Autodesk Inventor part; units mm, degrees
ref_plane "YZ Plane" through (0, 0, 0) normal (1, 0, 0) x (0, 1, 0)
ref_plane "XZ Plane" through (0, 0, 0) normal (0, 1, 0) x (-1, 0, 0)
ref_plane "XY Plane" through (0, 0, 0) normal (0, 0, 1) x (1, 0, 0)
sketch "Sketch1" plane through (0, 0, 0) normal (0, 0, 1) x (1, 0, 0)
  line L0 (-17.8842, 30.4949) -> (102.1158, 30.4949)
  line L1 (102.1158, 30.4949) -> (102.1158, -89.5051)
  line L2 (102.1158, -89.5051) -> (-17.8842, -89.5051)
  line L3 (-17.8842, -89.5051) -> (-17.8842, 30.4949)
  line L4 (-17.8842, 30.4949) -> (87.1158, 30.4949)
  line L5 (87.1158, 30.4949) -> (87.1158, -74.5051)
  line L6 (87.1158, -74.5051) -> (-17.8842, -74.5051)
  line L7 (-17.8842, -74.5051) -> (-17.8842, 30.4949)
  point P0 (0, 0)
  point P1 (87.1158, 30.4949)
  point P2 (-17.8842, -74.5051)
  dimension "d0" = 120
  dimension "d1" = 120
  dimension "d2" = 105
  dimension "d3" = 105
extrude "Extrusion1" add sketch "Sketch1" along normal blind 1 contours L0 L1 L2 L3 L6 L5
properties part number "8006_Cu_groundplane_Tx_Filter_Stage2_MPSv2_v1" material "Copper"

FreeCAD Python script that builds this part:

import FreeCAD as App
import Part
import Sketcher

V = App.Vector


def add_polygon(sketch, points):
    """Adds a closed chain of lines whose ends are joined by coincident constraints."""
    first, n = sketch.GeometryCount, len(points)
    for a, b in zip(points, points[1:] + points[:1]):
        sketch.addGeometry(Part.LineSegment(App.Vector(*a, 0), App.Vector(*b, 0)), False)
    for i in range(n):
        sketch.addConstraint(Sketcher.Constraint("Coincident", first + i, 2, first + (i + 1) % n, 1))

doc = App.newDocument("Part")
body = doc.addObject("PartDesign::Body", "Body")

# Sketch on XY plane
sketch1 = body.newObject("Sketcher::SketchObject", "Sketch")
sketch1.AttachmentSupport = (doc.getObject("XY_Plane"), [""])
sketch1.MapMode = "FlatFace"
add_polygon(sketch1, [(102.1158, 30.4949), (87.1158, 30.4949), (87.1158, -74.5051), (-17.8842, -74.5051), (-17.8842, -89.5051), (102.1158, -89.5051)])  # lines 0-5
sketch1.addConstraint([
    Sketcher.Constraint("Horizontal", 0),
    Sketcher.Constraint("Vertical", 1),
    Sketcher.Constraint("Horizontal", 2),
    Sketcher.Constraint("Vertical", 3),
    Sketcher.Constraint("Horizontal", 4),
    Sketcher.Constraint("Vertical", 5),
    Sketcher.Constraint("Equal", 2, 1),
    Sketcher.Constraint("Equal", 0, 3),
    Sketcher.Constraint("DistanceX", 2, 2, 2, 1, 105.0),
    Sketcher.Constraint("DistanceX", 4, 1, 4, 2, 120.0),
    Sketcher.Constraint("DistanceY", -1, 1, 0, 2, 30.495),
    Sketcher.Constraint("DistanceX", -1, 1, 0, 2, 87.1158),
])
pad1 = body.newObject("PartDesign::Pad", "Pad")
pad1.Profile = sketch1
pad1.Length = 1

doc.recompute()
